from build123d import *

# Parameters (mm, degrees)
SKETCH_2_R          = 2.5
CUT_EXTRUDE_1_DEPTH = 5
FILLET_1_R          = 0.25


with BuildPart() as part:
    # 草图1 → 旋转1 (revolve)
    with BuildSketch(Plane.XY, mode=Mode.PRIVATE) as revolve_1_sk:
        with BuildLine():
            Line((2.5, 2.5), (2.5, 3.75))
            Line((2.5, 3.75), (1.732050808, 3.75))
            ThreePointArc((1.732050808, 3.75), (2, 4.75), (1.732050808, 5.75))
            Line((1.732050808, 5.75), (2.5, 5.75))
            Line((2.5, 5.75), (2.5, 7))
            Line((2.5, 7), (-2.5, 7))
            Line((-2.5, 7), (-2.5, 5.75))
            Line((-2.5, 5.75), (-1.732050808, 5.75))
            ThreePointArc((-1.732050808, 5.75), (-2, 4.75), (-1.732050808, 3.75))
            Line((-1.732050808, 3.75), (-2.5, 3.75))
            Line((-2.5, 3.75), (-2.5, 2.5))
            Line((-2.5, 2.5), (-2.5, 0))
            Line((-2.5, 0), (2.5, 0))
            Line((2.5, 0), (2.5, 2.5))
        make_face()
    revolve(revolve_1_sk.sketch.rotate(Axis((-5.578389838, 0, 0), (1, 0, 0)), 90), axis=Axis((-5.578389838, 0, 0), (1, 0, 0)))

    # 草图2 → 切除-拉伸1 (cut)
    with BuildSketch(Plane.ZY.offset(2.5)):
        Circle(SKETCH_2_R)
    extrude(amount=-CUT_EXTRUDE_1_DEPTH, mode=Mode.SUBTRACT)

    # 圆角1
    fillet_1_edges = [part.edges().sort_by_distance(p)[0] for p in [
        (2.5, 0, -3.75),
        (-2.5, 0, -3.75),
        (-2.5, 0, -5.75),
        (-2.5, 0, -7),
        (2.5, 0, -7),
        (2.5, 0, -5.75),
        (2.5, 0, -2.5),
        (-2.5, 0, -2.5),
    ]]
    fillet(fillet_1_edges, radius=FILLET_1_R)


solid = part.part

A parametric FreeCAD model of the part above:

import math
import FreeCAD as App
import Part
import Sketcher

V = App.Vector
Q = App.Units.Quantity


def edges_at(feature, points):
    """Names of the edges that pass closest to the given points."""
    edges = feature.Shape.Edges
    near = lambda p: min(range(len(edges)), key=lambda i: edges[i].distToShape(Part.Vertex(*p))[0])
    return sorted({f"Edge{near(p) + 1}" for p in points})

doc = App.newDocument("Part")
params = doc.addObject("Spreadsheet::Sheet", "Params")
for row, (alias, value) in enumerate([
    ("sketch1_radius", "2 mm"),
    ("sketch1_width", "5 mm"),
    ("sketch1_height", "1.25 mm"),
    ("revolution_angle", "360 deg"),
    ("sketch2_diameter", "5 mm"),
    ("pocket1_length", "5 mm"),
    ("fillet_radius", "0.25 mm"),
], start=1):
    params.set(f"A{row}", alias)
    params.set(f"B{row}", "=" + value)
    params.setAlias(f"B{row}", alias)

body = doc.addObject("PartDesign::Body", "Body")

# Sketch on XY plane
sketch1 = body.newObject("Sketcher::SketchObject", "Sketch")
sketch1.AttachmentSupport = (doc.getObject("XY_Plane"), [""])
sketch1.MapMode = "FlatFace"
sketch1.addGeometry([
    Part.LineSegment(V(2.5, 3.8, 0), V(1.7, 3.8, 0)),  # 0
    Part.ArcOfCircle(Part.Circle(V(0, 4.8, 0), V(0, 0, 1), 2), math.radians(-30), math.radians(30)),  # 1
    Part.LineSegment(V(1.7, 5.8, 0), V(2.5, 5.8, 0)),  # 2
    Part.LineSegment(V(2.5, 5.8, 0), V(2.5, 7, 0)),  # 3
    Part.LineSegment(V(2.5, 7, 0), V(-2.5, 7, 0)),  # 4
    Part.LineSegment(V(-2.5, 7, 0), V(-2.5, 5.8, 0)),  # 5
    Part.LineSegment(V(-2.5, 5.8, 0), V(-1.7, 5.8, 0)),  # 6
    Part.ArcOfCircle(Part.Circle(V(0, 4.8, 0), V(0, 0, 1), 2), math.radians(150), math.radians(210)),  # 7
    Part.LineSegment(V(-1.7, 3.8, 0), V(-2.5, 3.8, 0)),  # 8
    Part.LineSegment(V(-2.5, 3.8, 0), V(-2.5, 0, 0)),  # 9
    Part.LineSegment(V(-2.5, 0, 0), V(2.5, 0, 0)),  # 10
    Part.LineSegment(V(2.5, 0, 0), V(2.5, 3.8, 0)),  # 11
], False)
sketch1.addConstraint([
    Sketcher.Constraint("Coincident", 0, 2, 1, 1),
    Sketcher.Constraint("Coincident", 1, 2, 2, 1),
    Sketcher.Constraint("Coincident", 2, 2, 3, 1),
    Sketcher.Constraint("Coincident", 3, 2, 4, 1),
    Sketcher.Constraint("Coincident", 4, 2, 5, 1),
    Sketcher.Constraint("Coincident", 5, 2, 6, 1),
    Sketcher.Constraint("Coincident", 6, 2, 7, 1),
    Sketcher.Constraint("Coincident", 7, 2, 8, 1),
    Sketcher.Constraint("Coincident", 8, 2, 9, 1),
    Sketcher.Constraint("Coincident", 9, 2, 10, 1),
    Sketcher.Constraint("Coincident", 10, 2, 11, 1),
    Sketcher.Constraint("Coincident", 11, 2, 0, 1),
    Sketcher.Constraint("Horizontal", 0),
    Sketcher.Constraint("Horizontal", 2),
    Sketcher.Constraint("Vertical", 3),
    Sketcher.Constraint("Horizontal", 4),
    Sketcher.Constraint("Vertical", 5),
    Sketcher.Constraint("Horizontal", 6),
    Sketcher.Constraint("Horizontal", 8),
    Sketcher.Constraint("Vertical", 9),
    Sketcher.Constraint("Horizontal", 10),
    Sketcher.Constraint("Vertical", 11),
    Sketcher.Constraint("Coincident", 7, 3, 1, 3),
    Sketcher.Constraint("Equal", 1, 7),
    Sketcher.Constraint("Symmetric", 9, 2, 10, 2, -1, 1),
    Sketcher.Constraint("Symmetric", 2, 2, 5, 2, -2),
    Sketcher.Constraint("Symmetric", 0, 2, 7, 2, -2),
    Sketcher.Constraint("Vertical", 0, 2, 1, 2),
    Sketcher.Constraint("Vertical", 5, 2, 8, 2),
    Sketcher.Constraint("Radius", 1, Q("2 mm")),
    Sketcher.Constraint("DistanceX", 4, 2, 4, 1, Q("5 mm")),
    Sketcher.Constraint("DistanceY", -1, 1, 3, 2, Q("7 mm")),
    Sketcher.Constraint("DistanceY", 0, 2, 7, 3, Q("1 mm")),
    Sketcher.Constraint("DistanceY", 3, 1, 3, 2, Q("1.25 mm")),
])
sketch1.setExpression("Constraints[29]", "Params.sketch1_radius")
sketch1.setExpression("Constraints[30]", "Params.sketch1_width")
sketch1.setExpression("Constraints[33]", "Params.sketch1_height")
revolution = body.newObject("PartDesign::Revolution", "Revolution")
revolution.Profile = sketch1
revolution.ReferenceAxis = (sketch1, ["H_Axis"])
revolution.setExpression("Angle", "Params.revolution_angle")

# Sketch on YZ plane
sketch2 = body.newObject("Sketcher::SketchObject", "Sketch001")
sketch2.AttachmentSupport = (doc.getObject("YZ_Plane"), [""])
sketch2.MapMode = "FlatFace"
sketch2.AttachmentOffset = App.Placement(V(0, 0, -2.5), App.Rotation())
sketch2.addGeometry(Part.Circle(V(0, 0, 0), V(0, 0, 1), 2.5), False)
sketch2.addConstraint([
    Sketcher.Constraint("Coincident", 0, 3, -1, 1),
    Sketcher.Constraint("Diameter", 0, Q("5 mm")),
])
sketch2.setExpression("Constraints[1]", "Params.sketch2_diameter")
pocket1 = body.newObject("PartDesign::Pocket", "Pocket")
pocket1.Profile = sketch2
pocket1.setExpression("Length", "Params.pocket1_length")
pocket1.Reversed = True
doc.recompute()

fillet = body.newObject("PartDesign::Fillet", "Fillet")
fillet.Base = (pocket1, edges_at(pocket1, [
    (2.5, 0, -3.75),
    (-2.5, 0, -3.75),
    (-2.5, 0, -5.75),
    (-2.5, 0, -7),
    (2.5, 0, -7),
    (2.5, 0, -5.75),
    (2.5, 0, -2.5),
    (-2.5, 0, -2.5),
]))
fillet.setExpression("Radius", "Params.fillet_radius")

doc.recompute()
